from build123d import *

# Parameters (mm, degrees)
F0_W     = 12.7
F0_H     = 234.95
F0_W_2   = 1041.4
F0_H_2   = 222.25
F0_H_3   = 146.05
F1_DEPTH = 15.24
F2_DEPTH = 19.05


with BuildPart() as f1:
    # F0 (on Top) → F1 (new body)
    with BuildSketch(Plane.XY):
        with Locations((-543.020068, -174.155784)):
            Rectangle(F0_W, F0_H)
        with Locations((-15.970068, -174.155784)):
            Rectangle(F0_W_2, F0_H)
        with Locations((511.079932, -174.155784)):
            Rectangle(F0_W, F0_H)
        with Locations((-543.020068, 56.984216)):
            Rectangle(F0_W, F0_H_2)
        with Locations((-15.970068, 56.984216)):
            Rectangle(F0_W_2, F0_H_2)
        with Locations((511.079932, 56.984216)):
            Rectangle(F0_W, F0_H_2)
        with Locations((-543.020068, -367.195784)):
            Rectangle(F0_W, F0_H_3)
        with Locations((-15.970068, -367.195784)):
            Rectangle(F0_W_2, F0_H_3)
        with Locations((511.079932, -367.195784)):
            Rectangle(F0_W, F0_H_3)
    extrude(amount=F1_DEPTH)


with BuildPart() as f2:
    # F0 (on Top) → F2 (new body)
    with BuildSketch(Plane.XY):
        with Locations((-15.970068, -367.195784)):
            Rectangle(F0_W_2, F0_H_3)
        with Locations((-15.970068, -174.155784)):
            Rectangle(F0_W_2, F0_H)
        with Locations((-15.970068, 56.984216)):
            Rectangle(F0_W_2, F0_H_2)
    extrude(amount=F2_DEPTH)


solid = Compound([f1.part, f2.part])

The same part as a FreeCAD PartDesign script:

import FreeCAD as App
import Part
import Sketcher
from FreeCAD import Vector
Q = App.Units.Quantity

doc = App.newDocument("Part")
params = doc.addObject("Spreadsheet::Sheet", "Params")
for row, (alias, value) in enumerate([
    ("sketch1_width", "42 in"),
    ("sketch1_height", "9.25 in"),
    ("sketch1_height2", "8.75 in"),
    ("sketch1_height3", "5.75 in"),
    ("pad1_length", "0.6 in"),
    ("sketch2_width", "41 in"),
    ("sketch2_height", "5.75 in"),
    ("sketch2_height2", "9.25 in"),
    ("sketch2_height3", "8.75 in"),
    ("pad2_length", "0.75 in"),
], start=1):
    params.set(f"A{row}", alias)
    params.set(f"B{row}", "=" + value)
    params.setAlias(f"B{row}", alias)

body = doc.addObject("PartDesign::Body", "Body")
body.AllowCompound = True

sketch1 = doc.addObject("Sketcher::SketchObject", "Sketch")
body.addObject(sketch1)
sketch1.AttachmentSupport = (doc.XY_Plane, [""])
sketch1.MapMode = "FlatFace"
sketch1.addGeometry([
    Part.LineSegment(Vector(-549.370068, -56.680784, 0), Vector(-549.370068, -291.630784, 0)),
    Part.LineSegment(Vector(-549.370068, -291.630784, 0), Vector(517.429932, -291.630784, 0)),
    Part.LineSegment(Vector(517.429932, -291.630784, 0), Vector(517.429932, -56.680784, 0)),
    Part.LineSegment(Vector(517.429932, -56.680784, 0), Vector(-549.370068, -56.680784, 0)),
    Part.LineSegment(Vector(-549.370068, 168.109216, 0), Vector(-549.370068, -54.140784, 0)),
    Part.LineSegment(Vector(-549.370068, -54.140784, 0), Vector(517.429932, -54.140784, 0)),
    Part.LineSegment(Vector(517.429932, -54.140784, 0), Vector(517.429932, 168.109216, 0)),
    Part.LineSegment(Vector(517.429932, 168.109216, 0), Vector(-549.370068, 168.109216, 0)),
    Part.LineSegment(Vector(-549.370068, -294.170784, 0), Vector(-549.370068, -440.220784, 0)),
    Part.LineSegment(Vector(-549.370068, -440.220784, 0), Vector(517.429932, -440.220784, 0)),
    Part.LineSegment(Vector(517.429932, -440.220784, 0), Vector(517.429932, -294.170784, 0)),
    Part.LineSegment(Vector(517.429932, -294.170784, 0), Vector(-549.370068, -294.170784, 0)),
], False)
sketch1.addConstraint([
    Sketcher.Constraint("Coincident", 0, 2, 1, 1),
    Sketcher.Constraint("Coincident", 1, 2, 2, 1),
    Sketcher.Constraint("Coincident", 2, 2, 3, 1),
    Sketcher.Constraint("Coincident", 3, 2, 0, 1),
    Sketcher.Constraint("Coincident", 4, 2, 5, 1),
    Sketcher.Constraint("Coincident", 5, 2, 6, 1),
    Sketcher.Constraint("Coincident", 6, 2, 7, 1),
    Sketcher.Constraint("Coincident", 7, 2, 4, 1),
    Sketcher.Constraint("Coincident", 8, 2, 9, 1),
    Sketcher.Constraint("Coincident", 9, 2, 10, 1),
    Sketcher.Constraint("Coincident", 10, 2, 11, 1),
    Sketcher.Constraint("Coincident", 11, 2, 8, 1),
    Sketcher.Constraint("Vertical", 0),
    Sketcher.Constraint("Horizontal", 1),
    Sketcher.Constraint("Vertical", 2),
    Sketcher.Constraint("Horizontal", 3),
    Sketcher.Constraint("Vertical", 4),
    Sketcher.Constraint("Horizontal", 5),
    Sketcher.Constraint("Vertical", 6),
    Sketcher.Constraint("Horizontal", 7),
    Sketcher.Constraint("Vertical", 8),
    Sketcher.Constraint("Horizontal", 9),
    Sketcher.Constraint("Vertical", 10),
    Sketcher.Constraint("Horizontal", 11),
    Sketcher.Constraint("Vertical", 3, 2, 4, 2),
    Sketcher.Constraint("Vertical", 2, 2, 5, 2),
    Sketcher.Constraint("Vertical", 7, 2, 8, 2),
    Sketcher.Constraint("Vertical", 6, 2, 9, 2),
    Sketcher.Constraint("DistanceX", 1, 1, 1, 2, Q("42 in")),
    Sketcher.Constraint("DistanceY", 0, 2, 0, 1, Q("9.25 in")),
    Sketcher.Constraint("DistanceY", 4, 2, 4, 1, Q("8.75 in")),
    Sketcher.Constraint("DistanceY", 8, 2, 8, 1, Q("5.75 in")),
    Sketcher.Constraint("DistanceY", 3, 2, 4, 2, Q("0.1 in")),
    Sketcher.Constraint("DistanceY", 8, 2, 3, 2, Q("15.1 in")),
    Sketcher.Constraint("DistanceX", -1, 1, 1, 2, 517.429932),
    Sketcher.Constraint("DistanceY", 0, 2, -1, 1, 291.630784),
])
sketch1.setExpression("Constraints[28]", "Params.sketch1_width")
sketch1.setExpression("Constraints[29]", "Params.sketch1_height")
sketch1.setExpression("Constraints[30]", "Params.sketch1_height2")
sketch1.setExpression("Constraints[31]", "Params.sketch1_height3")
pad1 = doc.addObject("PartDesign::Pad", "Pad")
body.addObject(pad1)
pad1.Profile = sketch1
pad1.setExpression("Length", "Params.pad1_length")
body2 = doc.addObject("PartDesign::Body", "Body001")
body2.AllowCompound = True

sketch2 = doc.addObject("Sketcher::SketchObject", "Sketch001")
body2.addObject(sketch2)
sketch2.AttachmentSupport = (doc.getObject("XY_Plane001"), [""])
sketch2.MapMode = "FlatFace"
sketch2.addGeometry([
    Part.LineSegment(Vector(-536.670068, -294.170784, 0), Vector(-536.670068, -440.220784, 0)),
    Part.LineSegment(Vector(-536.670068, -440.220784, 0), Vector(504.729932, -440.220784, 0)),
    Part.LineSegment(Vector(504.729932, -440.220784, 0), Vector(504.729932, -294.170784, 0)),
    Part.LineSegment(Vector(504.729932, -294.170784, 0), Vector(-536.670068, -294.170784, 0)),
    Part.LineSegment(Vector(-536.670068, -56.680784, 0), Vector(-536.670068, -291.630784, 0)),
    Part.LineSegment(Vector(-536.670068, -291.630784, 0), Vector(504.729932, -291.630784, 0)),
    Part.LineSegment(Vector(504.729932, -291.630784, 0), Vector(504.729932, -56.680784, 0)),
    Part.LineSegment(Vector(504.729932, -56.680784, 0), Vector(-536.670068, -56.680784, 0)),
    Part.LineSegment(Vector(-536.670068, 168.109216, 0), Vector(-536.670068, -54.140784, 0)),
    Part.LineSegment(Vector(-536.670068, -54.140784, 0), Vector(504.729932, -54.140784, 0)),
    Part.LineSegment(Vector(504.729932, -54.140784, 0), Vector(504.729932, 168.109216, 0)),
    Part.LineSegment(Vector(504.729932, 168.109216, 0), Vector(-536.670068, 168.109216, 0)),
], False)
sketch2.addConstraint([
    Sketcher.Constraint("Coincident", 0, 2, 1, 1),
    Sketcher.Constraint("Coincident", 1, 2, 2, 1),
    Sketcher.Constraint("Coincident", 2, 2, 3, 1),
    Sketcher.Constraint("Coincident", 3, 2, 0, 1),
    Sketcher.Constraint("Coincident", 4, 2, 5, 1),
    Sketcher.Constraint("Coincident", 5, 2, 6, 1),
    Sketcher.Constraint("Coincident", 6, 2, 7, 1),
    Sketcher.Constraint("Coincident", 7, 2, 4, 1),
    Sketcher.Constraint("Coincident", 8, 2, 9, 1),
    Sketcher.Constraint("Coincident", 9, 2, 10, 1),
    Sketcher.Constraint("Coincident", 10, 2, 11, 1),
    Sketcher.Constraint("Coincident", 11, 2, 8, 1),
    Sketcher.Constraint("Vertical", 0),
    Sketcher.Constraint("Horizontal", 1),
    Sketcher.Constraint("Vertical", 2),
    Sketcher.Constraint("Horizontal", 3),
    Sketcher.Constraint("Vertical", 4),
    Sketcher.Constraint("Horizontal", 5),
    Sketcher.Constraint("Vertical", 6),
    Sketcher.Constraint("Horizontal", 7),
    Sketcher.Constraint("Vertical", 8),
    Sketcher.Constraint("Horizontal", 9),
    Sketcher.Constraint("Vertical", 10),
    Sketcher.Constraint("Horizontal", 11),
    Sketcher.Constraint("Vertical", 3, 2, 4, 2),
    Sketcher.Constraint("Vertical", 2, 2, 5, 2),
    Sketcher.Constraint("Vertical", 7, 2, 8, 2),
    Sketcher.Constraint("Vertical", 6, 2, 9, 2),
    Sketcher.Constraint("DistanceX", 1, 1, 1, 2, Q("41 in")),
    Sketcher.Constraint("DistanceY", 0, 2, 0, 1, Q("5.75 in")),
    Sketcher.Constraint("DistanceY", 4, 2, 4, 1, Q("9.25 in")),
    Sketcher.Constraint("DistanceY", 8, 2, 8, 1, Q("8.75 in")),
    Sketcher.Constraint("DistanceY", 3, 2, 4, 2, Q("0.1 in")),
    Sketcher.Constraint("DistanceY", 7, 2, 8, 2, Q("0.1 in")),
    Sketcher.Constraint("DistanceX", 0, 2, -1, 1, 536.670068),
    Sketcher.Constraint("DistanceY", 0, 2, -1, 1, 440.220784),
])
sketch2.setExpression("Constraints[28]", "Params.sketch2_width")
sketch2.setExpression("Constraints[29]", "Params.sketch2_height")
sketch2.setExpression("Constraints[30]", "Params.sketch2_height2")
sketch2.setExpression("Constraints[31]", "Params.sketch2_height3")
pad2 = doc.addObject("PartDesign::Pad", "Pad001")
body2.addObject(pad2)
pad2.Profile = sketch2
pad2.setExpression("Length", "Params.pad2_length")

doc.recompute()
